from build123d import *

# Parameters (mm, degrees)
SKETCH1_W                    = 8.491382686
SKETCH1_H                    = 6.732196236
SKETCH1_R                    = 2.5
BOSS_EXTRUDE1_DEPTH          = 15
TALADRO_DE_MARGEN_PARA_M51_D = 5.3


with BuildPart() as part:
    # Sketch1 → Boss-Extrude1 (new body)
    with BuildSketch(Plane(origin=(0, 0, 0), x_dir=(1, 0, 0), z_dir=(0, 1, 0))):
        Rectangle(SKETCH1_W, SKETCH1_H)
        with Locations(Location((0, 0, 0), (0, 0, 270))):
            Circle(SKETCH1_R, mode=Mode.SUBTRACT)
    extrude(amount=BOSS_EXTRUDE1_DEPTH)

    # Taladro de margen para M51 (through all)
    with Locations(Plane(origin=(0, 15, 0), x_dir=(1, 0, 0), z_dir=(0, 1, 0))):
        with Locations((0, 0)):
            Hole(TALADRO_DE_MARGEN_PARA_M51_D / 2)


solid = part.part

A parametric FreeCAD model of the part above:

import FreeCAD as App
import Part
import Sketcher
from FreeCAD import Vector
Q = App.Units.Quantity

doc = App.newDocument("Part")
body = doc.addObject("PartDesign::Body", "Body")

# Sketch on XZ plane
sketch1 = body.newObject("Sketcher::SketchObject", "Sketch")
sketch1.AttachmentSupport = (doc.getObject("XZ_Plane"), [""])
sketch1.MapMode = "FlatFace"
sketch1.addGeometry([
    Part.LineSegment(Vector(-4.245691, -3.366098, 0), Vector(-4.245691, 3.366098, 0)),  # 0
    Part.LineSegment(Vector(-4.245691, 3.366098, 0), Vector(4.245691, 3.366098, 0)),  # 1
    Part.LineSegment(Vector(4.245691, 3.366098, 0), Vector(4.245691, -3.366098, 0)),  # 2
    Part.LineSegment(Vector(4.245691, -3.366098, 0), Vector(-4.245691, -3.366098, 0)),  # 3
    Part.Circle(Vector(0, 0, 0), Vector(0, 0, 1), 2.5),  # 4
], False)
sketch1.addConstraint([
    Sketcher.Constraint("Coincident", 0, 2, 1, 1),
    Sketcher.Constraint("Coincident", 1, 2, 2, 1),
    Sketcher.Constraint("Coincident", 2, 2, 3, 1),
    Sketcher.Constraint("Coincident", 3, 2, 0, 1),
    Sketcher.Constraint("Vertical", 0),
    Sketcher.Constraint("Horizontal", 1),
    Sketcher.Constraint("Vertical", 2),
    Sketcher.Constraint("Horizontal", 3),
    Sketcher.Constraint("Coincident", 4, 3, -1, 1),
    Sketcher.Constraint("Symmetric", 0, 2, 2, 2, -1, 1),
    Sketcher.Constraint("Diameter", 4, Q("5 mm")),
    Sketcher.Constraint("DistanceY", -1, 1, 0, 2, Q("3.366098 mm")),
    Sketcher.Constraint("DistanceX", 1, 1, 1, 2, Q("8.491383 mm")),
])
pad1 = body.newObject("PartDesign::Pad", "Pad")
pad1.Profile = sketch1
pad1.Length = 15
pad1.Reversed = True

# Sketch on XZ plane
sketch2 = body.newObject("Sketcher::SketchObject", "Sketch001")
sketch2.AttachmentSupport = (doc.getObject("XZ_Plane"), [""])
sketch2.MapMode = "FlatFace"
sketch2.AttachmentOffset = App.Placement(Vector(0, 0, -15), App.Rotation())
sketch2.addGeometry(Part.Circle(Vector(0, 0, 0), Vector(0, 0, 1), 2.65), False)
sketch2.addConstraint([
    Sketcher.Constraint("Coincident", 0, 3, -1, 1),
    Sketcher.Constraint("Diameter", 0, Q("5.3 mm")),
])
doc.recompute()
hole = body.newObject("PartDesign::Hole", "Hole")
hole.Profile = sketch2
hole.ThreadType = "None"
hole.Diameter = 5.3
hole.DepthType = "ThroughAll"
hole.Reversed = True

doc.recompute()
